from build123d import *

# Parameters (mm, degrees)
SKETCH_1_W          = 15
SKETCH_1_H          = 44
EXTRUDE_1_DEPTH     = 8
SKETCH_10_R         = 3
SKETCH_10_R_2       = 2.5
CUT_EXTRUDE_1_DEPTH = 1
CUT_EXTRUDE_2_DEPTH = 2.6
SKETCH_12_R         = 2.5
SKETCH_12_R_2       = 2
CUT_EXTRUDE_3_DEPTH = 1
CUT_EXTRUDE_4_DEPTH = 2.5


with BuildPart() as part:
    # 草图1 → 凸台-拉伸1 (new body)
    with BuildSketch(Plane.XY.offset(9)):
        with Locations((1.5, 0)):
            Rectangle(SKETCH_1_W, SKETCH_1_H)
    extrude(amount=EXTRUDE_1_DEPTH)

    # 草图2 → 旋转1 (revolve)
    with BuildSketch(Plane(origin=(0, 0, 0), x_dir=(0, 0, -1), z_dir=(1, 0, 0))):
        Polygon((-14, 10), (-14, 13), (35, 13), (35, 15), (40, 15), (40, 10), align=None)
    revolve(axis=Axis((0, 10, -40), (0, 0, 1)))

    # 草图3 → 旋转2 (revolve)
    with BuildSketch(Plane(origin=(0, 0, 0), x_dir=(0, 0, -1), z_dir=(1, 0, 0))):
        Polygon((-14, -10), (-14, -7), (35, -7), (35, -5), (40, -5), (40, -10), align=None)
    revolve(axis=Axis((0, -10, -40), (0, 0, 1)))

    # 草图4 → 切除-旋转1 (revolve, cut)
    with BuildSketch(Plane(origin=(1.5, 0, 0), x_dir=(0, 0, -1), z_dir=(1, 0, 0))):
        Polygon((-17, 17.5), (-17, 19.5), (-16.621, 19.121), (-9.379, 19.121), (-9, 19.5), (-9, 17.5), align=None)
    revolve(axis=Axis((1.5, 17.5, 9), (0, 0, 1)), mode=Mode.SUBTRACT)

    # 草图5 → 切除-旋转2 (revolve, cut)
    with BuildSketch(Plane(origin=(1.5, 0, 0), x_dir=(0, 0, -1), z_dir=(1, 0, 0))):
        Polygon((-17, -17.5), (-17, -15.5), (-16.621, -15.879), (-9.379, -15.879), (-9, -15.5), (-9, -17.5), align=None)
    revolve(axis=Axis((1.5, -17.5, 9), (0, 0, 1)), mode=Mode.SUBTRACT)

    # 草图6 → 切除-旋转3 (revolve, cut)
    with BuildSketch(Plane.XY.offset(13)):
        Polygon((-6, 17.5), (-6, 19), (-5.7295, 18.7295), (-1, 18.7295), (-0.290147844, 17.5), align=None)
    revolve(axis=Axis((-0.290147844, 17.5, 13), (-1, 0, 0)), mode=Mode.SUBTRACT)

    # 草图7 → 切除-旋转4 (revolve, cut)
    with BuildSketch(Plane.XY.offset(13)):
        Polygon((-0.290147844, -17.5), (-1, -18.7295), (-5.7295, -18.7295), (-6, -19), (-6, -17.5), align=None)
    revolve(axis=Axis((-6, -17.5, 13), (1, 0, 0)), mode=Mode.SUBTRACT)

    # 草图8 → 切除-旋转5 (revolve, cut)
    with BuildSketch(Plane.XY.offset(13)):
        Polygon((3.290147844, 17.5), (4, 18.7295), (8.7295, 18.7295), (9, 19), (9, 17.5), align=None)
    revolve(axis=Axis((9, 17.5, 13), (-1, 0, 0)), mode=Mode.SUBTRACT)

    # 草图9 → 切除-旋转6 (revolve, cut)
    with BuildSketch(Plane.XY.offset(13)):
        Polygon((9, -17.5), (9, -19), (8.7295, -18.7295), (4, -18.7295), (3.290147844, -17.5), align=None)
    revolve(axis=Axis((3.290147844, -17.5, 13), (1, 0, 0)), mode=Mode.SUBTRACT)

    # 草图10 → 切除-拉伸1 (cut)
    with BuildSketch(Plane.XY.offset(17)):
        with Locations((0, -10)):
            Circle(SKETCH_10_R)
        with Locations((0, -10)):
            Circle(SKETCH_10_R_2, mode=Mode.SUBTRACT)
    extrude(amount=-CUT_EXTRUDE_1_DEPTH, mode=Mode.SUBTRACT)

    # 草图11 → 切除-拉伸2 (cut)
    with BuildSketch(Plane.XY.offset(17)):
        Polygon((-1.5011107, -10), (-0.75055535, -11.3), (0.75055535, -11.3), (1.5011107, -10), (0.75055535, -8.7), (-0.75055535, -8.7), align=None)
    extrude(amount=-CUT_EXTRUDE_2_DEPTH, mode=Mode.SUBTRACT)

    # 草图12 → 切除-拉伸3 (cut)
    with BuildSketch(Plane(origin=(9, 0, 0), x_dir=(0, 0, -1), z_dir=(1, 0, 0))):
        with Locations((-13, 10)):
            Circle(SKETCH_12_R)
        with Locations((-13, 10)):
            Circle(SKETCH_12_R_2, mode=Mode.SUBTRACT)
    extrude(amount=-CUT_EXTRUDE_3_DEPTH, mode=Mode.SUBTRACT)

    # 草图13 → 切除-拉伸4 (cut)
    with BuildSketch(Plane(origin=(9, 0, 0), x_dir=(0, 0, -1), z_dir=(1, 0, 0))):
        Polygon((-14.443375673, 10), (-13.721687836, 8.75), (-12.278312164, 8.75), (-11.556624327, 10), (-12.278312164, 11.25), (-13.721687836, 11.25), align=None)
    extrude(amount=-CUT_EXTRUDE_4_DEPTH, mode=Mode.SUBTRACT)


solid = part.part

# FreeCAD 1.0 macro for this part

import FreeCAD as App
import Part
import Sketcher

V = App.Vector
Q = App.Units.Quantity


def add_polygon(sketch, points):
    """Adds a closed chain of lines whose ends are joined by coincident constraints."""
    first, n = sketch.GeometryCount, len(points)
    for a, b in zip(points, points[1:] + points[:1]):
        sketch.addGeometry(Part.LineSegment(App.Vector(*a, 0), App.Vector(*b, 0)), False)
    for i in range(n):
        sketch.addConstraint(Sketcher.Constraint("Coincident", first + i, 2, first + (i + 1) % n, 1))

doc = App.newDocument("Part")
body = doc.addObject("PartDesign::Body", "Body")

sketch1 = doc.addObject("Sketcher::SketchObject", "Sketch")
body.addObject(sketch1)
sketch1.AttachmentSupport = (doc.XY_Plane, [""])
sketch1.MapMode = "FlatFace"
sketch1.AttachmentOffset = App.Placement(V(0, 0, 9), App.Rotation())
add_polygon(sketch1, [(-6, 22), (-6, -22), (9, -22), (9, 22)])
sketch1.addConstraint(Sketcher.Constraint("Vertical", 0))
sketch1.addConstraint(Sketcher.Constraint("Horizontal", 1))
sketch1.addConstraint(Sketcher.Constraint("Vertical", 2))
sketch1.addConstraint(Sketcher.Constraint("Horizontal", 3))
sketch1.addConstraint(Sketcher.Constraint("DistanceX", 1, 1, 1, 2, Q("15 mm")))
sketch1.addConstraint(Sketcher.Constraint("DistanceY", 0, 2, 0, 1, Q("44 mm")))
sketch1.addConstraint(Sketcher.Constraint("DistanceX", 0, 2, -1, 1, Q("6 mm")))
sketch1.addConstraint(Sketcher.Constraint("DistanceY", 0, 2, -1, 1, Q("22 mm")))
pad1 = doc.addObject("PartDesign::Pad", "Pad")
body.addObject(pad1)
pad1.Profile = sketch1
pad1.Length = 8

sketch2 = doc.addObject("Sketcher::SketchObject", "Sketch001")
body.addObject(sketch2)
sketch2.AttachmentSupport = (doc.YZ_Plane, [""])
sketch2.MapMode = "FlatFace"
add_polygon(sketch2, [(13, 14), (10, 14), (10, -40), (15, -40), (15, -35), (13, -35)])
sketch2.addGeometry(Part.LineSegment(V(10, -40, 0), V(10, 14, 0)), True)
sketch2.addConstraint(Sketcher.Constraint("Horizontal", 0))
sketch2.addConstraint(Sketcher.Constraint("Vertical", 1))
sketch2.addConstraint(Sketcher.Constraint("Horizontal", 2))
sketch2.addConstraint(Sketcher.Constraint("Vertical", 3))
sketch2.addConstraint(Sketcher.Constraint("Horizontal", 4))
sketch2.addConstraint(Sketcher.Constraint("Vertical", 5))
sketch2.addConstraint(Sketcher.Constraint("Vertical", 6))
sketch2.addConstraint(Sketcher.Constraint("Coincident", 6, 1, 1, 2))
sketch2.addConstraint(Sketcher.Constraint("Horizontal", 5, 2, 6, 2))
sketch2.addConstraint(Sketcher.Constraint("Equal", 2, 3))
sketch2.addConstraint(Sketcher.Constraint("DistanceX", 0, 2, 0, 1, Q("3 mm")))
sketch2.addConstraint(Sketcher.Constraint("DistanceX", 2, 1, 2, 2, Q("5 mm")))
sketch2.addConstraint(Sketcher.Constraint("DistanceY", 1, 2, 1, 1, Q("54 mm")))
sketch2.addConstraint(Sketcher.Constraint("DistanceX", -1, 1, 0, 2, Q("10 mm")))
sketch2.addConstraint(Sketcher.Constraint("DistanceY", -1, 1, 0, 2, Q("14 mm")))
revolution = doc.addObject("PartDesign::Revolution", "Revolution")
body.addObject(revolution)
revolution.Profile = sketch2
revolution.ReferenceAxis = (sketch2, ["Axis0"])
revolution.Angle = 360

sketch3 = doc.addObject("Sketcher::SketchObject", "Sketch002")
body.addObject(sketch3)
sketch3.AttachmentSupport = (doc.YZ_Plane, [""])
sketch3.MapMode = "FlatFace"
add_polygon(sketch3, [(-7, 14), (-10, 14), (-10, -40), (-5, -40), (-5, -35), (-7, -35)])
sketch3.addGeometry(Part.LineSegment(V(-10, -40, 0), V(-10, 14, 0)), True)
sketch3.addConstraint(Sketcher.Constraint("Horizontal", 0))
sketch3.addConstraint(Sketcher.Constraint("Vertical", 1))
sketch3.addConstraint(Sketcher.Constraint("Horizontal", 2))
sketch3.addConstraint(Sketcher.Constraint("Vertical", 3))
sketch3.addConstraint(Sketcher.Constraint("Horizontal", 4))
sketch3.addConstraint(Sketcher.Constraint("Vertical", 5))
sketch3.addConstraint(Sketcher.Constraint("Vertical", 6))
sketch3.addConstraint(Sketcher.Constraint("Coincident", 6, 1, 1, 2))
sketch3.addConstraint(Sketcher.Constraint("Horizontal", 5, 2, 6, 2))
sketch3.addConstraint(Sketcher.Constraint("Equal", 2, 3))
sketch3.addConstraint(Sketcher.Constraint("DistanceX", 0, 2, 0, 1, Q("3 mm")))
sketch3.addConstraint(Sketcher.Constraint("DistanceX", 2, 1, 2, 2, Q("5 mm")))
sketch3.addConstraint(Sketcher.Constraint("DistanceY", 1, 2, 1, 1, Q("54 mm")))
sketch3.addConstraint(Sketcher.Constraint("DistanceX", 0, 2, -1, 1, Q("10 mm")))
sketch3.addConstraint(Sketcher.Constraint("DistanceY", -1, 1, 0, 2, Q("14 mm")))
revolution2 = doc.addObject("PartDesign::Revolution", "Revolution001")
body.addObject(revolution2)
revolution2.Profile = sketch3
revolution2.ReferenceAxis = (sketch3, ["Axis0"])
revolution2.Angle = 360

sketch4 = doc.addObject("Sketcher::SketchObject", "Sketch003")
body.addObject(sketch4)
sketch4.AttachmentSupport = (doc.YZ_Plane, [""])
sketch4.MapMode = "FlatFace"
sketch4.AttachmentOffset = App.Placement(V(0, 0, 1.5), App.Rotation())
add_polygon(sketch4, [(19.5, 17), (17.5, 17), (17.5, 9), (19.5, 9), (19.1, 9.4), (19.1, 16.6)])
sketch4.addGeometry(Part.LineSegment(V(17.5, 9, 0), V(17.5, 17, 0)), True)
sketch4.addConstraint(Sketcher.Constraint("Horizontal", 0))
sketch4.addConstraint(Sketcher.Constraint("Vertical", 1))
sketch4.addConstraint(Sketcher.Constraint("Horizontal", 2))
sketch4.addConstraint(Sketcher.Constraint("Vertical", 4))
sketch4.addConstraint(Sketcher.Constraint("Vertical", 6))
sketch4.addConstraint(Sketcher.Constraint("Coincident", 6, 1, 1, 2))
sketch4.addConstraint(Sketcher.Constraint("Perpendicular", 3, 5))
sketch4.addConstraint(Sketcher.Constraint("Horizontal", 5, 2, 6, 2))
sketch4.addConstraint(Sketcher.Constraint("Vertical", 2, 2, 5, 2))
sketch4.addConstraint(Sketcher.Constraint("Equal", 3, 5))
sketch4.addConstraint(Sketcher.Constraint("DistanceX", 0, 2, 0, 1, Q("2 mm")))
sketch4.addConstraint(Sketcher.Constraint("DistanceY", 1, 2, 1, 1, Q("8 mm")))
sketch4.addConstraint(Sketcher.Constraint("DistanceY", -1, 1, 0, 2, Q("17 mm")))
sketch4.addConstraint(Sketcher.Constraint("DistanceX", -1, 1, 0, 2, Q("17.5 mm")))
sketch4.addConstraint(Sketcher.Constraint("DistanceY", 4, 1, 4, 2, Q("7.242 mm")))
groove = doc.addObject("PartDesign::Groove", "Groove")
body.addObject(groove)
groove.Profile = sketch4
groove.ReferenceAxis = (sketch4, ["Axis0"])
groove.Angle = 360

sketch5 = doc.addObject("Sketcher::SketchObject", "Sketch004")
body.addObject(sketch5)
sketch5.AttachmentSupport = (doc.YZ_Plane, [""])
sketch5.MapMode = "FlatFace"
sketch5.AttachmentOffset = App.Placement(V(0, 0, 1.5), App.Rotation())
add_polygon(sketch5, [(-15.5, 17), (-17.5, 17), (-17.5, 9), (-15.5, 9), (-15.9, 9.4), (-15.9, 16.6)])
sketch5.addGeometry(Part.LineSegment(V(-17.5, 9, 0), V(-17.5, 17, 0)), True)
sketch5.addConstraint(Sketcher.Constraint("Horizontal", 0))
sketch5.addConstraint(Sketcher.Constraint("Vertical", 1))
sketch5.addConstraint(Sketcher.Constraint("Horizontal", 2))
sketch5.addConstraint(Sketcher.Constraint("Vertical", 4))
sketch5.addConstraint(Sketcher.Constraint("Vertical", 6))
sketch5.addConstraint(Sketcher.Constraint("Coincident", 6, 1, 1, 2))
sketch5.addConstraint(Sketcher.Constraint("Perpendicular", 3, 5))
sketch5.addConstraint(Sketcher.Constraint("Horizontal", 5, 2, 6, 2))
sketch5.addConstraint(Sketcher.Constraint("Vertical", 2, 2, 5, 2))
sketch5.addConstraint(Sketcher.Constraint("Equal", 3, 5))
sketch5.addConstraint(Sketcher.Constraint("DistanceX", 0, 2, 0, 1, Q("2 mm")))
sketch5.addConstraint(Sketcher.Constraint("DistanceY", 1, 2, 1, 1, Q("8 mm")))
sketch5.addConstraint(Sketcher.Constraint("DistanceY", -1, 1, 0, 2, Q("17 mm")))
sketch5.addConstraint(Sketcher.Constraint("DistanceX", 0, 2, -1, 1, Q("17.5 mm")))
sketch5.addConstraint(Sketcher.Constraint("DistanceY", 4, 1, 4, 2, Q("7.242 mm")))
groove2 = doc.addObject("PartDesign::Groove", "Groove001")
body.addObject(groove2)
groove2.Profile = sketch5
groove2.ReferenceAxis = (sketch5, ["Axis0"])
groove2.Angle = 360

sketch6 = doc.addObject("Sketcher::SketchObject", "Sketch005")
body.addObject(sketch6)
sketch6.AttachmentSupport = (doc.XY_Plane, [""])
sketch6.MapMode = "FlatFace"
sketch6.AttachmentOffset = App.Placement(V(0, 0, 13), App.Rotation())
add_polygon(sketch6, [(-6, 19), (-6, 17.5), (-0.29, 17.5), (-1, 18.73), (-5.73, 18.73)])
sketch6.addGeometry(Part.LineSegment(V(-0.29, 17.5, 0), V(-6, 17.5, 0)), True)
sketch6.addConstraint(Sketcher.Constraint("Vertical", 0))
sketch6.addConstraint(Sketcher.Constraint("Horizontal", 1))
sketch6.addConstraint(Sketcher.Constraint("Horizontal", 3))
sketch6.addConstraint(Sketcher.Constraint("Horizontal", 5))
sketch6.addConstraint(Sketcher.Constraint("Coincident", 5, 1, 1, 2))
sketch6.addConstraint(Sketcher.Constraint("Vertical", 4, 2, 5, 2))
sketch6.addConstraint(Sketcher.Constraint("Angle", 2, Q("120 deg")))
sketch6.addConstraint(Sketcher.Constraint("Angle", 4, Q("135 deg")))
sketch6.addConstraint(Sketcher.Constraint("DistanceY", 0, 2, 0, 1, Q("1.5 mm")))
sketch6.addConstraint(Sketcher.Constraint("DistanceX", 0, 2, -1, 1, Q("6 mm")))
sketch6.addConstraint(Sketcher.Constraint("DistanceX", 2, 2, -1, 1, Q("1 mm")))
sketch6.addConstraint(Sketcher.Constraint("DistanceY", -1, 1, 4, 2, Q("19 mm")))
sketch6.addConstraint(Sketcher.Constraint("DistanceX", 3, 2, 3, 1, Q("4.7295 mm")))
groove3 = doc.addObject("PartDesign::Groove", "Groove002")
body.addObject(groove3)
groove3.Profile = sketch6
groove3.ReferenceAxis = (sketch6, ["Axis0"])
groove3.Angle = 360

sketch7 = doc.addObject("Sketcher::SketchObject", "Sketch006")
body.addObject(sketch7)
sketch7.AttachmentSupport = (doc.XY_Plane, [""])
sketch7.MapMode = "FlatFace"
sketch7.AttachmentOffset = App.Placement(V(0, 0, 13), App.Rotation())
add_polygon(sketch7, [(-1, -18.73), (-0.29, -17.5), (-6, -17.5), (-6, -19), (-5.73, -18.73)])
sketch7.addGeometry(Part.LineSegment(V(-6, -17.5, 0), V(-0.29, -17.5, 0)), True)
sketch7.addConstraint(Sketcher.Constraint("Horizontal", 1))
sketch7.addConstraint(Sketcher.Constraint("Vertical", 2))
sketch7.addConstraint(Sketcher.Constraint("Horizontal", 4))
sketch7.addConstraint(Sketcher.Constraint("Horizontal", 5))
sketch7.addConstraint(Sketcher.Constraint("Coincident", 5, 1, 1, 2))
sketch7.addConstraint(Sketcher.Constraint("Equal", 1, 5))
sketch7.addConstraint(Sketcher.Constraint("Angle", 0, Q("60 deg")))
sketch7.addConstraint(Sketcher.Constraint("Angle", 3, Q("45 deg")))
sketch7.addConstraint(Sketcher.Constraint("DistanceY", 2, 2, 2, 1, Q("1.5 mm")))
sketch7.addConstraint(Sketcher.Constraint("DistanceX", 1, 2, -1, 1, Q("6 mm")))
sketch7.addConstraint(Sketcher.Constraint("DistanceY", 2, 2, -1, 1, Q("19 mm")))
sketch7.addConstraint(Sketcher.Constraint("DistanceX", 4, 2, -1, 1, Q("1 mm")))
sketch7.addConstraint(Sketcher.Constraint("DistanceX", 4, 1, 4, 2, Q("4.7295 mm")))
groove4 = doc.addObject("PartDesign::Groove", "Groove003")
body.addObject(groove4)
groove4.Profile = sketch7
groove4.ReferenceAxis = (sketch7, ["Axis0"])
groove4.Angle = 360

sketch8 = doc.addObject("Sketcher::SketchObject", "Sketch007")
body.addObject(sketch8)
sketch8.AttachmentSupport = (doc.XY_Plane, [""])
sketch8.MapMode = "FlatFace"
sketch8.AttachmentOffset = App.Placement(V(0, 0, 13), App.Rotation())
add_polygon(sketch8, [(4, 18.73), (3.29, 17.5), (9, 17.5), (9, 19), (8.73, 18.73)])
sketch8.addGeometry(Part.LineSegment(V(9, 17.5, 0), V(3.29, 17.5, 0)), True)
sketch8.addConstraint(Sketcher.Constraint("Horizontal", 1))
sketch8.addConstraint(Sketcher.Constraint("Vertical", 2))
sketch8.addConstraint(Sketcher.Constraint("Horizontal", 4))
sketch8.addConstraint(Sketcher.Constraint("Horizontal", 5))
sketch8.addConstraint(Sketcher.Constraint("Coincident", 5, 1, 1, 2))
sketch8.addConstraint(Sketcher.Constraint("Equal", 1, 5))
sketch8.addConstraint(Sketcher.Constraint("Angle", 0, Q("-120 deg")))
sketch8.addConstraint(Sketcher.Constraint("Angle", 3, Q("-135 deg")))
sketch8.addConstraint(Sketcher.Constraint("DistanceY", 2, 1, 2, 2, Q("1.5 mm")))
sketch8.addConstraint(Sketcher.Constraint("DistanceX", -1, 1, 1, 2, Q("9 mm")))
sketch8.addConstraint(Sketcher.Constraint("DistanceY", -1, 1, 2, 2, Q("19 mm")))
sketch8.addConstraint(Sketcher.Constraint("DistanceX", -1, 1, 4, 2, Q("4 mm")))
sketch8.addConstraint(Sketcher.Constraint("DistanceX", 4, 2, 4, 1, Q("4.7295 mm")))
groove5 = doc.addObject("PartDesign::Groove", "Groove004")
body.addObject(groove5)
groove5.Profile = sketch8
groove5.ReferenceAxis = (sketch8, ["Axis0"])
groove5.Angle = 360

sketch9 = doc.addObject("Sketcher::SketchObject", "Sketch008")
body.addObject(sketch9)
sketch9.AttachmentSupport = (doc.XY_Plane, [""])
sketch9.MapMode = "FlatFace"
sketch9.AttachmentOffset = App.Placement(V(0, 0, 13), App.Rotation())
add_polygon(sketch9, [(9, -19), (9, -17.5), (3.29, -17.5), (4, -18.73), (8.73, -18.73)])
sketch9.addGeometry(Part.LineSegment(V(3.29, -17.5, 0), V(9, -17.5, 0)), True)
sketch9.addConstraint(Sketcher.Constraint("Vertical", 0))
sketch9.addConstraint(Sketcher.Constraint("Horizontal", 1))
sketch9.addConstraint(Sketcher.Constraint("Horizontal", 3))
sketch9.addConstraint(Sketcher.Constraint("Horizontal", 5))
sketch9.addConstraint(Sketcher.Constraint("Coincident", 5, 1, 1, 2))
sketch9.addConstraint(Sketcher.Constraint("Vertical", 4, 2, 5, 2))
sketch9.addConstraint(Sketcher.Constraint("Angle", 2, Q("-60 deg")))
sketch9.addConstraint(Sketcher.Constraint("Angle", 4, Q("-45 deg")))
sketch9.addConstraint(Sketcher.Constraint("DistanceY", 0, 1, 0, 2, Q("1.5 mm")))
sketch9.addConstraint(Sketcher.Constraint("DistanceX", -1, 1, 0, 2, Q("9 mm")))
sketch9.addConstraint(Sketcher.Constraint("DistanceX", -1, 1, 2, 2, Q("4 mm")))
sketch9.addConstraint(Sketcher.Constraint("DistanceY", 4, 2, -1, 1, Q("19 mm")))
sketch9.addConstraint(Sketcher.Constraint("DistanceX", 3, 1, 3, 2, Q("4.7295 mm")))
groove6 = doc.addObject("PartDesign::Groove", "Groove005")
body.addObject(groove6)
groove6.Profile = sketch9
groove6.ReferenceAxis = (sketch9, ["Axis0"])
groove6.Angle = 360

sketch10 = doc.addObject("Sketcher::SketchObject", "Sketch009")
body.addObject(sketch10)
sketch10.AttachmentSupport = (doc.XY_Plane, [""])
sketch10.MapMode = "FlatFace"
sketch10.AttachmentOffset = App.Placement(V(0, 0, 17), App.Rotation())
sketch10.addGeometry(Part.Circle(V(0, -10, 0), V(0, 0, 1), 3), False)
sketch10.addGeometry(Part.Circle(V(0, -10, 0), V(0, 0, 1), 2.5), False)
sketch10.addConstraint(Sketcher.Constraint("Coincident", 1, 3, 0, 3))
sketch10.addConstraint(Sketcher.Constraint("PointOnObject", 0, 3, -2))
sketch10.addConstraint(Sketcher.Constraint("Diameter", 0, Q("6 mm")))
sketch10.addConstraint(Sketcher.Constraint("Diameter", 1, Q("5 mm")))
sketch10.addConstraint(Sketcher.Constraint("DistanceY", 0, 3, -1, 1, Q("10 mm")))
pocket1 = doc.addObject("PartDesign::Pocket", "Pocket")
body.addObject(pocket1)
pocket1.Profile = sketch10
pocket1.Length = 1

sketch11 = doc.addObject("Sketcher::SketchObject", "Sketch010")
body.addObject(sketch11)
sketch11.AttachmentSupport = (doc.XY_Plane, [""])
sketch11.MapMode = "FlatFace"
sketch11.AttachmentOffset = App.Placement(V(0, 0, 17), App.Rotation())
add_polygon(sketch11, [(-1.5, -10), (-0.8, -11.3), (0.8, -11.3), (1.5, -10), (0.8, -8.7), (-0.8, -8.7)])
sketch11.addConstraint(Sketcher.Constraint("Horizontal", 1))
sketch11.addConstraint(Sketcher.Constraint("Horizontal", 4))
sketch11.addConstraint(Sketcher.Constraint("Symmetric", 2, 2, 5, 2, -2))
sketch11.addConstraint(Sketcher.Constraint("Parallel", 0, 3))
sketch11.addConstraint(Sketcher.Constraint("Parallel", 2, 5))
sketch11.addConstraint(Sketcher.Constraint("Vertical", 1, 2, 3, 2))
sketch11.addConstraint(Sketcher.Constraint("Vertical", 0, 2, 4, 2))
sketch11.addConstraint(Sketcher.Constraint("Angle", 0, Q("-60 deg")))
sketch11.addConstraint(Sketcher.Constraint("DistanceY", 2, 2, -1, 1, Q("10 mm")))
sketch11.addConstraint(Sketcher.Constraint("DistanceY", 0, 2, -1, 1, Q("11.3 mm")))
sketch11.addConstraint(Sketcher.Constraint("DistanceX", 1, 1, 1, 2, Q("1.501111 mm")))
pocket2 = doc.addObject("PartDesign::Pocket", "Pocket001")
body.addObject(pocket2)
pocket2.Profile = sketch11
pocket2.Length = 2.6

sketch12 = doc.addObject("Sketcher::SketchObject", "Sketch011")
body.addObject(sketch12)
sketch12.AttachmentSupport = (doc.YZ_Plane, [""])
sketch12.MapMode = "FlatFace"
sketch12.AttachmentOffset = App.Placement(V(0, 0, 9), App.Rotation())
sketch12.addGeometry(Part.Circle(V(10, 13, 0), V(0, 0, 1), 2.5), False)
sketch12.addGeometry(Part.Circle(V(10, 13, 0), V(0, 0, 1), 2), False)
sketch12.addConstraint(Sketcher.Constraint("Coincident", 1, 3, 0, 3))
sketch12.addConstraint(Sketcher.Constraint("Diameter", 0, Q("5 mm")))
sketch12.addConstraint(Sketcher.Constraint("Diameter", 1, Q("4 mm")))
sketch12.addConstraint(Sketcher.Constraint("DistanceX", -1, 1, 0, 3, Q("10 mm")))
sketch12.addConstraint(Sketcher.Constraint("DistanceY", -1, 1, 0, 3, Q("13 mm")))
pocket3 = doc.addObject("PartDesign::Pocket", "Pocket002")
body.addObject(pocket3)
pocket3.Profile = sketch12
pocket3.Length = 1

sketch13 = doc.addObject("Sketcher::SketchObject", "Sketch012")
body.addObject(sketch13)
sketch13.AttachmentSupport = (doc.YZ_Plane, [""])
sketch13.MapMode = "FlatFace"
sketch13.AttachmentOffset = App.Placement(V(0, 0, 9), App.Rotation())
add_polygon(sketch13, [(10, 14.4), (8.8, 13.7), (8.8, 12.3), (10, 11.6), (11.2, 12.3), (11.2, 13.7)])
sketch13.addConstraint(Sketcher.Constraint("Vertical", 1))
sketch13.addConstraint(Sketcher.Constraint("Vertical", 4))
sketch13.addConstraint(Sketcher.Constraint("Parallel", 0, 3))
sketch13.addConstraint(Sketcher.Constraint("Parallel", 2, 5))
sketch13.addConstraint(Sketcher.Constraint("Horizontal", 1, 2, 3, 2))
sketch13.addConstraint(Sketcher.Constraint("Horizontal", 0, 2, 4, 2))
sketch13.addConstraint(Sketcher.Constraint("Vertical", 2, 2, 5, 2))
sketch13.addConstraint(Sketcher.Constraint("Angle", 0, Q("-150 deg")))
sketch13.addConstraint(Sketcher.Constraint("DistanceX", -1, 1, 2, 2, Q("10 mm")))
sketch13.addConstraint(Sketcher.Constraint("DistanceX", 1, 2, 3, 2, Q("2.5 mm")))
sketch13.addConstraint(Sketcher.Constraint("DistanceY", 1, 2, 1, 1, Q("1.443376 mm")))
sketch13.addConstraint(Sketcher.Constraint("DistanceY", -1, 1, 0, 2, Q("13.721688 mm")))
pocket4 = doc.addObject("PartDesign::Pocket", "Pocket003")
body.addObject(pocket4)
pocket4.Profile = sketch13
pocket4.Length = 2.5

doc.recompute()
